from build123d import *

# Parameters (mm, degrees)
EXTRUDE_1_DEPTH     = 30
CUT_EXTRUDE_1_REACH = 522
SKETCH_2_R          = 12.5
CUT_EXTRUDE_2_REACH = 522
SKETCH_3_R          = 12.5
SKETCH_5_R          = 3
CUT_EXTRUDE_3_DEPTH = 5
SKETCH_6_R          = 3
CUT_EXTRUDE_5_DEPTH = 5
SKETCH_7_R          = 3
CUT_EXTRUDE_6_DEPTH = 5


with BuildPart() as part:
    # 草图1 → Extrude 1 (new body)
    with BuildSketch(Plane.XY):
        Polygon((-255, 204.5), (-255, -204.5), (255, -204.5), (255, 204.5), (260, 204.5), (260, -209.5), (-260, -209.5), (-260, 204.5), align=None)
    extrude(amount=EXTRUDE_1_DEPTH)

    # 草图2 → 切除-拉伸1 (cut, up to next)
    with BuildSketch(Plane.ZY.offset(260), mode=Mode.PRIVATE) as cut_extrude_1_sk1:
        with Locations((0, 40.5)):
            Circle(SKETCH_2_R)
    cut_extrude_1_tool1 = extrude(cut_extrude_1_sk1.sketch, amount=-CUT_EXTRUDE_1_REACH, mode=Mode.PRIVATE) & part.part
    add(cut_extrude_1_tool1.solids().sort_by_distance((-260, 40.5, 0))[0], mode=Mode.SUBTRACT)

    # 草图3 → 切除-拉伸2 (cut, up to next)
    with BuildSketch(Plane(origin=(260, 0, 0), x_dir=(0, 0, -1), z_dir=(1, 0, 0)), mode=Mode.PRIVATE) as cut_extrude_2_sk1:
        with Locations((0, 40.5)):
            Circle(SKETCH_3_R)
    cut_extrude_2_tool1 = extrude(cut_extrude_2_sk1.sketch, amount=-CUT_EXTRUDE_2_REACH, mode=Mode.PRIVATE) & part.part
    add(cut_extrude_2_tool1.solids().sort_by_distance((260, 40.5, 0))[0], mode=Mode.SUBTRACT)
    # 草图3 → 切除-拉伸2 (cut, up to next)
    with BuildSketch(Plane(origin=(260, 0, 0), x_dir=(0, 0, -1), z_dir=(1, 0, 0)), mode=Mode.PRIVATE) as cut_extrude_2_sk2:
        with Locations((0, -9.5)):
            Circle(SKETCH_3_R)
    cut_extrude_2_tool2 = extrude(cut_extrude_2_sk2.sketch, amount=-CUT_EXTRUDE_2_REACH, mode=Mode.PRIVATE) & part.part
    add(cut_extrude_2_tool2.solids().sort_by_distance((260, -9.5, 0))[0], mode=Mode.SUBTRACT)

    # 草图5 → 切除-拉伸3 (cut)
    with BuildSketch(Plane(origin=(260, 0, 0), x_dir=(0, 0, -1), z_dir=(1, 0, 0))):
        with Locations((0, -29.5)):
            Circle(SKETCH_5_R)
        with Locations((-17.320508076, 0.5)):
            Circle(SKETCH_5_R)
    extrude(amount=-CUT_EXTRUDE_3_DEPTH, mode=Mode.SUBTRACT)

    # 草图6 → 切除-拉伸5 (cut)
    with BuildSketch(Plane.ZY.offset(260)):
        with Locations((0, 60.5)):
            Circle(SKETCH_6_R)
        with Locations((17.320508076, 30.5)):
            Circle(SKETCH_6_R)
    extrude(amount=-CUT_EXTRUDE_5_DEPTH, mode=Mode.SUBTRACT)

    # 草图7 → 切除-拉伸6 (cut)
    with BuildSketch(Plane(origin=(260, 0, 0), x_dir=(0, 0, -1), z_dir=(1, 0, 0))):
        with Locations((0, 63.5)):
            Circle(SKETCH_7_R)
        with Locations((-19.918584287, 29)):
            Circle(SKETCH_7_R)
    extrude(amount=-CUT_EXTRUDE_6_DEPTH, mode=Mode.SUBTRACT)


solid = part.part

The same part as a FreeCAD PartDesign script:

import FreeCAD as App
import Part
import Sketcher


def add_polygon(sketch, points):
    """Adds a closed chain of lines whose ends are joined by coincident constraints."""
    first, n = sketch.GeometryCount, len(points)
    for a, b in zip(points, points[1:] + points[:1]):
        sketch.addGeometry(Part.LineSegment(App.Vector(*a, 0), App.Vector(*b, 0)), False)
    for i in range(n):
        sketch.addConstraint(Sketcher.Constraint("Coincident", first + i, 2, first + (i + 1) % n, 1))

doc = App.newDocument("Part")
params = doc.addObject("Spreadsheet::Sheet", "Params")
for row, (alias, value) in enumerate([
    ("sketch1_width", "5 mm"),
    ("sketch1_width2", "520 mm"),
    ("sketch1_height", "409 mm"),
    ("sketch1_height2", "414 mm"),
    ("pad1_length", "30 mm"),
    ("sketch2_diameter", "25 mm"),
    ("sketch3_diameter", "25 mm"),
    ("sketch4_diameter", "25 mm"),
    ("sketch5_diameter", "6 mm"),
    ("pocket4_length", "5 mm"),
    ("sketch6_diameter", "6 mm"),
    ("pocket5_length", "5 mm"),
    ("sketch7_diameter", "6 mm"),
    ("pocket6_length", "5 mm"),
], start=1):
    params.set(f"A{row}", alias)
    params.set(f"B{row}", "=" + value)
    params.setAlias(f"B{row}", alias)

body = doc.addObject("PartDesign::Body", "Body")

# Sketch on XY plane
sketch1 = doc.addObject("Sketcher::SketchObject", "Sketch")
body.addObject(sketch1)
sketch1.AttachmentSupport = (doc.XY_Plane, [""])
sketch1.MapMode = "FlatFace"
add_polygon(sketch1, [(-255, -204), (-255, 204), (-260, 204), (-260, -210), (260, -210), (260, 204), (255, 204), (255, -204)])  # lines 0-7
sketch1.addConstraint(Sketcher.Constraint("Vertical", 0))
sketch1.addConstraint(Sketcher.Constraint("Horizontal", 1))
sketch1.addConstraint(Sketcher.Constraint("Vertical", 2))
sketch1.addConstraint(Sketcher.Constraint("Horizontal", 3))
sketch1.addConstraint(Sketcher.Constraint("Vertical", 4))
sketch1.addConstraint(Sketcher.Constraint("Horizontal", 5))
sketch1.addConstraint(Sketcher.Constraint("Vertical", 6))
sketch1.addConstraint(Sketcher.Constraint("Horizontal", 7))
sketch1.addConstraint(Sketcher.Constraint("Symmetric", 0, 2, 6, 2, -1, 1))
sketch1.addConstraint(Sketcher.Constraint("Symmetric", 1, 2, 4, 2, -2))
sketch1.addConstraint(Sketcher.Constraint("DistanceX", 1, 2, 1, 1, 5.0))
sketch1.addConstraint(Sketcher.Constraint("DistanceX", 3, 1, 3, 2, 520.0))
sketch1.addConstraint(Sketcher.Constraint("DistanceY", 0, 1, 0, 2, 409.0))
sketch1.addConstraint(Sketcher.Constraint("DistanceY", 2, 2, 2, 1, 414.0))
sketch1.setExpression("Constraints[18]", "Params.sketch1_width")
sketch1.setExpression("Constraints[19]", "Params.sketch1_width2")
sketch1.setExpression("Constraints[20]", "Params.sketch1_height")
sketch1.setExpression("Constraints[21]", "Params.sketch1_height2")
pad1 = doc.addObject("PartDesign::Pad", "Pad")
body.addObject(pad1)
pad1.Profile = sketch1
pad1.setExpression("Length", "Params.pad1_length")

# Sketch on YZ plane
sketch2 = doc.addObject("Sketcher::SketchObject", "Sketch001")
body.addObject(sketch2)
sketch2.AttachmentSupport = (doc.YZ_Plane, [""])
sketch2.MapMode = "FlatFace"
sketch2.AttachmentOffset = App.Placement(App.Vector(0, 0, -260), App.Rotation())
sketch2.addGeometry(Part.Circle(App.Vector(40, 0, 0), App.Vector(0, 0, 1), 12), False)
sketch2.addConstraint(Sketcher.Constraint("PointOnObject", 0, 3, -1))
sketch2.addConstraint(Sketcher.Constraint("Diameter", 0, 25.0))
sketch2.addConstraint(Sketcher.Constraint("DistanceX", -1, 1, 0, 3, 40.5))
sketch2.setExpression("Constraints[1]", "Params.sketch2_diameter")
pocket1 = doc.addObject("PartDesign::Pocket", "Pocket")
body.addObject(pocket1)
pocket1.Profile = sketch2
pocket1.Type = "UpToFirst"
pocket1.Reversed = True

# Sketch on YZ plane
sketch3 = doc.addObject("Sketcher::SketchObject", "Sketch002")
body.addObject(sketch3)
sketch3.AttachmentSupport = (doc.YZ_Plane, [""])
sketch3.MapMode = "FlatFace"
sketch3.AttachmentOffset = App.Placement(App.Vector(0, 0, 260), App.Rotation())
sketch3.addGeometry(Part.Circle(App.Vector(40, 0, 0), App.Vector(0, 0, 1), 12), False)
sketch3.addConstraint(Sketcher.Constraint("PointOnObject", 0, 3, -1))
sketch3.addConstraint(Sketcher.Constraint("Diameter", 0, 25.0))
sketch3.addConstraint(Sketcher.Constraint("DistanceX", -1, 1, 0, 3, 40.5))
sketch3.setExpression("Constraints[1]", "Params.sketch3_diameter")
pocket2 = doc.addObject("PartDesign::Pocket", "Pocket001")
body.addObject(pocket2)
pocket2.Profile = sketch3
pocket2.Type = "UpToFirst"

# Sketch on YZ plane
sketch4 = doc.addObject("Sketcher::SketchObject", "Sketch003")
body.addObject(sketch4)
sketch4.AttachmentSupport = (doc.YZ_Plane, [""])
sketch4.MapMode = "FlatFace"
sketch4.AttachmentOffset = App.Placement(App.Vector(0, 0, 260), App.Rotation())
sketch4.addGeometry(Part.Circle(App.Vector(-10, 0, 0), App.Vector(0, 0, 1), 12), False)
sketch4.addConstraint(Sketcher.Constraint("PointOnObject", 0, 3, -1))
sketch4.addConstraint(Sketcher.Constraint("Diameter", 0, 25.0))
sketch4.addConstraint(Sketcher.Constraint("DistanceX", 0, 3, -1, 1, 9.5))
sketch4.setExpression("Constraints[1]", "Params.sketch4_diameter")
pocket3 = doc.addObject("PartDesign::Pocket", "Pocket002")
body.addObject(pocket3)
pocket3.Profile = sketch4
pocket3.Type = "UpToFirst"

# Sketch on YZ plane
sketch5 = doc.addObject("Sketcher::SketchObject", "Sketch004")
body.addObject(sketch5)
sketch5.AttachmentSupport = (doc.YZ_Plane, [""])
sketch5.MapMode = "FlatFace"
sketch5.AttachmentOffset = App.Placement(App.Vector(0, 0, 260), App.Rotation())
sketch5.addGeometry(Part.Circle(App.Vector(-29.5, 0, 0), App.Vector(0, 0, 1), 3), False)
sketch5.addGeometry(Part.Circle(App.Vector(0.5, 17.3, 0), App.Vector(0, 0, 1), 3), False)
sketch5.addConstraint(Sketcher.Constraint("Equal", 0, 1))
sketch5.addConstraint(Sketcher.Constraint("PointOnObject", 0, 3, -1))
sketch5.addConstraint(Sketcher.Constraint("Diameter", 0, 6.0))
sketch5.addConstraint(Sketcher.Constraint("DistanceX", 0, 3, 1, 3, 30.0))
sketch5.addConstraint(Sketcher.Constraint("DistanceX", 0, 3, -1, 1, 29.5))
sketch5.addConstraint(Sketcher.Constraint("DistanceY", -1, 1, 1, 3, 17.320508))
sketch5.setExpression("Constraints[2]", "Params.sketch5_diameter")
pocket4 = doc.addObject("PartDesign::Pocket", "Pocket003")
body.addObject(pocket4)
pocket4.Profile = sketch5
pocket4.setExpression("Length", "Params.pocket4_length")

# Sketch on YZ plane
sketch6 = doc.addObject("Sketcher::SketchObject", "Sketch005")
body.addObject(sketch6)
sketch6.AttachmentSupport = (doc.YZ_Plane, [""])
sketch6.MapMode = "FlatFace"
sketch6.AttachmentOffset = App.Placement(App.Vector(0, 0, -260), App.Rotation())
sketch6.addGeometry(Part.Circle(App.Vector(60.5, 0, 0), App.Vector(0, 0, 1), 3), False)
sketch6.addGeometry(Part.Circle(App.Vector(30.5, 17.3, 0), App.Vector(0, 0, 1), 3), False)
sketch6.addConstraint(Sketcher.Constraint("Equal", 0, 1))
sketch6.addConstraint(Sketcher.Constraint("PointOnObject", 0, 3, -1))
sketch6.addConstraint(Sketcher.Constraint("Diameter", 0, 6.0))
sketch6.addConstraint(Sketcher.Constraint("DistanceX", 1, 3, 0, 3, 30.0))
sketch6.addConstraint(Sketcher.Constraint("DistanceX", -1, 1, 0, 3, 60.5))
sketch6.addConstraint(Sketcher.Constraint("DistanceY", -1, 1, 1, 3, 17.320508))
sketch6.setExpression("Constraints[2]", "Params.sketch6_diameter")
pocket5 = doc.addObject("PartDesign::Pocket", "Pocket004")
body.addObject(pocket5)
pocket5.Profile = sketch6
pocket5.setExpression("Length", "Params.pocket5_length")
pocket5.Reversed = True

# Sketch on YZ plane
sketch7 = doc.addObject("Sketcher::SketchObject", "Sketch006")
body.addObject(sketch7)
sketch7.AttachmentSupport = (doc.YZ_Plane, [""])
sketch7.MapMode = "FlatFace"
sketch7.AttachmentOffset = App.Placement(App.Vector(0, 0, 260), App.Rotation())
sketch7.addGeometry(Part.Circle(App.Vector(63.5, 0, 0), App.Vector(0, 0, 1), 3), False)
sketch7.addGeometry(Part.Circle(App.Vector(29, 19.9, 0), App.Vector(0, 0, 1), 3), False)
sketch7.addConstraint(Sketcher.Constraint("Equal", 0, 1))
sketch7.addConstraint(Sketcher.Constraint("PointOnObject", 0, 3, -1))
sketch7.addConstraint(Sketcher.Constraint("Diameter", 0, 6.0))
sketch7.addConstraint(Sketcher.Constraint("DistanceX", -1, 1, 1, 3, 29.0))
sketch7.addConstraint(Sketcher.Constraint("DistanceX", -1, 1, 0, 3, 63.5))
sketch7.addConstraint(Sketcher.Constraint("DistanceY", -1, 1, 1, 3, 19.918584))
sketch7.setExpression("Constraints[2]", "Params.sketch7_diameter")
pocket6 = doc.addObject("PartDesign::Pocket", "Pocket005")
body.addObject(pocket6)
pocket6.Profile = sketch7
pocket6.setExpression("Length", "Params.pocket6_length")

doc.recompute()
